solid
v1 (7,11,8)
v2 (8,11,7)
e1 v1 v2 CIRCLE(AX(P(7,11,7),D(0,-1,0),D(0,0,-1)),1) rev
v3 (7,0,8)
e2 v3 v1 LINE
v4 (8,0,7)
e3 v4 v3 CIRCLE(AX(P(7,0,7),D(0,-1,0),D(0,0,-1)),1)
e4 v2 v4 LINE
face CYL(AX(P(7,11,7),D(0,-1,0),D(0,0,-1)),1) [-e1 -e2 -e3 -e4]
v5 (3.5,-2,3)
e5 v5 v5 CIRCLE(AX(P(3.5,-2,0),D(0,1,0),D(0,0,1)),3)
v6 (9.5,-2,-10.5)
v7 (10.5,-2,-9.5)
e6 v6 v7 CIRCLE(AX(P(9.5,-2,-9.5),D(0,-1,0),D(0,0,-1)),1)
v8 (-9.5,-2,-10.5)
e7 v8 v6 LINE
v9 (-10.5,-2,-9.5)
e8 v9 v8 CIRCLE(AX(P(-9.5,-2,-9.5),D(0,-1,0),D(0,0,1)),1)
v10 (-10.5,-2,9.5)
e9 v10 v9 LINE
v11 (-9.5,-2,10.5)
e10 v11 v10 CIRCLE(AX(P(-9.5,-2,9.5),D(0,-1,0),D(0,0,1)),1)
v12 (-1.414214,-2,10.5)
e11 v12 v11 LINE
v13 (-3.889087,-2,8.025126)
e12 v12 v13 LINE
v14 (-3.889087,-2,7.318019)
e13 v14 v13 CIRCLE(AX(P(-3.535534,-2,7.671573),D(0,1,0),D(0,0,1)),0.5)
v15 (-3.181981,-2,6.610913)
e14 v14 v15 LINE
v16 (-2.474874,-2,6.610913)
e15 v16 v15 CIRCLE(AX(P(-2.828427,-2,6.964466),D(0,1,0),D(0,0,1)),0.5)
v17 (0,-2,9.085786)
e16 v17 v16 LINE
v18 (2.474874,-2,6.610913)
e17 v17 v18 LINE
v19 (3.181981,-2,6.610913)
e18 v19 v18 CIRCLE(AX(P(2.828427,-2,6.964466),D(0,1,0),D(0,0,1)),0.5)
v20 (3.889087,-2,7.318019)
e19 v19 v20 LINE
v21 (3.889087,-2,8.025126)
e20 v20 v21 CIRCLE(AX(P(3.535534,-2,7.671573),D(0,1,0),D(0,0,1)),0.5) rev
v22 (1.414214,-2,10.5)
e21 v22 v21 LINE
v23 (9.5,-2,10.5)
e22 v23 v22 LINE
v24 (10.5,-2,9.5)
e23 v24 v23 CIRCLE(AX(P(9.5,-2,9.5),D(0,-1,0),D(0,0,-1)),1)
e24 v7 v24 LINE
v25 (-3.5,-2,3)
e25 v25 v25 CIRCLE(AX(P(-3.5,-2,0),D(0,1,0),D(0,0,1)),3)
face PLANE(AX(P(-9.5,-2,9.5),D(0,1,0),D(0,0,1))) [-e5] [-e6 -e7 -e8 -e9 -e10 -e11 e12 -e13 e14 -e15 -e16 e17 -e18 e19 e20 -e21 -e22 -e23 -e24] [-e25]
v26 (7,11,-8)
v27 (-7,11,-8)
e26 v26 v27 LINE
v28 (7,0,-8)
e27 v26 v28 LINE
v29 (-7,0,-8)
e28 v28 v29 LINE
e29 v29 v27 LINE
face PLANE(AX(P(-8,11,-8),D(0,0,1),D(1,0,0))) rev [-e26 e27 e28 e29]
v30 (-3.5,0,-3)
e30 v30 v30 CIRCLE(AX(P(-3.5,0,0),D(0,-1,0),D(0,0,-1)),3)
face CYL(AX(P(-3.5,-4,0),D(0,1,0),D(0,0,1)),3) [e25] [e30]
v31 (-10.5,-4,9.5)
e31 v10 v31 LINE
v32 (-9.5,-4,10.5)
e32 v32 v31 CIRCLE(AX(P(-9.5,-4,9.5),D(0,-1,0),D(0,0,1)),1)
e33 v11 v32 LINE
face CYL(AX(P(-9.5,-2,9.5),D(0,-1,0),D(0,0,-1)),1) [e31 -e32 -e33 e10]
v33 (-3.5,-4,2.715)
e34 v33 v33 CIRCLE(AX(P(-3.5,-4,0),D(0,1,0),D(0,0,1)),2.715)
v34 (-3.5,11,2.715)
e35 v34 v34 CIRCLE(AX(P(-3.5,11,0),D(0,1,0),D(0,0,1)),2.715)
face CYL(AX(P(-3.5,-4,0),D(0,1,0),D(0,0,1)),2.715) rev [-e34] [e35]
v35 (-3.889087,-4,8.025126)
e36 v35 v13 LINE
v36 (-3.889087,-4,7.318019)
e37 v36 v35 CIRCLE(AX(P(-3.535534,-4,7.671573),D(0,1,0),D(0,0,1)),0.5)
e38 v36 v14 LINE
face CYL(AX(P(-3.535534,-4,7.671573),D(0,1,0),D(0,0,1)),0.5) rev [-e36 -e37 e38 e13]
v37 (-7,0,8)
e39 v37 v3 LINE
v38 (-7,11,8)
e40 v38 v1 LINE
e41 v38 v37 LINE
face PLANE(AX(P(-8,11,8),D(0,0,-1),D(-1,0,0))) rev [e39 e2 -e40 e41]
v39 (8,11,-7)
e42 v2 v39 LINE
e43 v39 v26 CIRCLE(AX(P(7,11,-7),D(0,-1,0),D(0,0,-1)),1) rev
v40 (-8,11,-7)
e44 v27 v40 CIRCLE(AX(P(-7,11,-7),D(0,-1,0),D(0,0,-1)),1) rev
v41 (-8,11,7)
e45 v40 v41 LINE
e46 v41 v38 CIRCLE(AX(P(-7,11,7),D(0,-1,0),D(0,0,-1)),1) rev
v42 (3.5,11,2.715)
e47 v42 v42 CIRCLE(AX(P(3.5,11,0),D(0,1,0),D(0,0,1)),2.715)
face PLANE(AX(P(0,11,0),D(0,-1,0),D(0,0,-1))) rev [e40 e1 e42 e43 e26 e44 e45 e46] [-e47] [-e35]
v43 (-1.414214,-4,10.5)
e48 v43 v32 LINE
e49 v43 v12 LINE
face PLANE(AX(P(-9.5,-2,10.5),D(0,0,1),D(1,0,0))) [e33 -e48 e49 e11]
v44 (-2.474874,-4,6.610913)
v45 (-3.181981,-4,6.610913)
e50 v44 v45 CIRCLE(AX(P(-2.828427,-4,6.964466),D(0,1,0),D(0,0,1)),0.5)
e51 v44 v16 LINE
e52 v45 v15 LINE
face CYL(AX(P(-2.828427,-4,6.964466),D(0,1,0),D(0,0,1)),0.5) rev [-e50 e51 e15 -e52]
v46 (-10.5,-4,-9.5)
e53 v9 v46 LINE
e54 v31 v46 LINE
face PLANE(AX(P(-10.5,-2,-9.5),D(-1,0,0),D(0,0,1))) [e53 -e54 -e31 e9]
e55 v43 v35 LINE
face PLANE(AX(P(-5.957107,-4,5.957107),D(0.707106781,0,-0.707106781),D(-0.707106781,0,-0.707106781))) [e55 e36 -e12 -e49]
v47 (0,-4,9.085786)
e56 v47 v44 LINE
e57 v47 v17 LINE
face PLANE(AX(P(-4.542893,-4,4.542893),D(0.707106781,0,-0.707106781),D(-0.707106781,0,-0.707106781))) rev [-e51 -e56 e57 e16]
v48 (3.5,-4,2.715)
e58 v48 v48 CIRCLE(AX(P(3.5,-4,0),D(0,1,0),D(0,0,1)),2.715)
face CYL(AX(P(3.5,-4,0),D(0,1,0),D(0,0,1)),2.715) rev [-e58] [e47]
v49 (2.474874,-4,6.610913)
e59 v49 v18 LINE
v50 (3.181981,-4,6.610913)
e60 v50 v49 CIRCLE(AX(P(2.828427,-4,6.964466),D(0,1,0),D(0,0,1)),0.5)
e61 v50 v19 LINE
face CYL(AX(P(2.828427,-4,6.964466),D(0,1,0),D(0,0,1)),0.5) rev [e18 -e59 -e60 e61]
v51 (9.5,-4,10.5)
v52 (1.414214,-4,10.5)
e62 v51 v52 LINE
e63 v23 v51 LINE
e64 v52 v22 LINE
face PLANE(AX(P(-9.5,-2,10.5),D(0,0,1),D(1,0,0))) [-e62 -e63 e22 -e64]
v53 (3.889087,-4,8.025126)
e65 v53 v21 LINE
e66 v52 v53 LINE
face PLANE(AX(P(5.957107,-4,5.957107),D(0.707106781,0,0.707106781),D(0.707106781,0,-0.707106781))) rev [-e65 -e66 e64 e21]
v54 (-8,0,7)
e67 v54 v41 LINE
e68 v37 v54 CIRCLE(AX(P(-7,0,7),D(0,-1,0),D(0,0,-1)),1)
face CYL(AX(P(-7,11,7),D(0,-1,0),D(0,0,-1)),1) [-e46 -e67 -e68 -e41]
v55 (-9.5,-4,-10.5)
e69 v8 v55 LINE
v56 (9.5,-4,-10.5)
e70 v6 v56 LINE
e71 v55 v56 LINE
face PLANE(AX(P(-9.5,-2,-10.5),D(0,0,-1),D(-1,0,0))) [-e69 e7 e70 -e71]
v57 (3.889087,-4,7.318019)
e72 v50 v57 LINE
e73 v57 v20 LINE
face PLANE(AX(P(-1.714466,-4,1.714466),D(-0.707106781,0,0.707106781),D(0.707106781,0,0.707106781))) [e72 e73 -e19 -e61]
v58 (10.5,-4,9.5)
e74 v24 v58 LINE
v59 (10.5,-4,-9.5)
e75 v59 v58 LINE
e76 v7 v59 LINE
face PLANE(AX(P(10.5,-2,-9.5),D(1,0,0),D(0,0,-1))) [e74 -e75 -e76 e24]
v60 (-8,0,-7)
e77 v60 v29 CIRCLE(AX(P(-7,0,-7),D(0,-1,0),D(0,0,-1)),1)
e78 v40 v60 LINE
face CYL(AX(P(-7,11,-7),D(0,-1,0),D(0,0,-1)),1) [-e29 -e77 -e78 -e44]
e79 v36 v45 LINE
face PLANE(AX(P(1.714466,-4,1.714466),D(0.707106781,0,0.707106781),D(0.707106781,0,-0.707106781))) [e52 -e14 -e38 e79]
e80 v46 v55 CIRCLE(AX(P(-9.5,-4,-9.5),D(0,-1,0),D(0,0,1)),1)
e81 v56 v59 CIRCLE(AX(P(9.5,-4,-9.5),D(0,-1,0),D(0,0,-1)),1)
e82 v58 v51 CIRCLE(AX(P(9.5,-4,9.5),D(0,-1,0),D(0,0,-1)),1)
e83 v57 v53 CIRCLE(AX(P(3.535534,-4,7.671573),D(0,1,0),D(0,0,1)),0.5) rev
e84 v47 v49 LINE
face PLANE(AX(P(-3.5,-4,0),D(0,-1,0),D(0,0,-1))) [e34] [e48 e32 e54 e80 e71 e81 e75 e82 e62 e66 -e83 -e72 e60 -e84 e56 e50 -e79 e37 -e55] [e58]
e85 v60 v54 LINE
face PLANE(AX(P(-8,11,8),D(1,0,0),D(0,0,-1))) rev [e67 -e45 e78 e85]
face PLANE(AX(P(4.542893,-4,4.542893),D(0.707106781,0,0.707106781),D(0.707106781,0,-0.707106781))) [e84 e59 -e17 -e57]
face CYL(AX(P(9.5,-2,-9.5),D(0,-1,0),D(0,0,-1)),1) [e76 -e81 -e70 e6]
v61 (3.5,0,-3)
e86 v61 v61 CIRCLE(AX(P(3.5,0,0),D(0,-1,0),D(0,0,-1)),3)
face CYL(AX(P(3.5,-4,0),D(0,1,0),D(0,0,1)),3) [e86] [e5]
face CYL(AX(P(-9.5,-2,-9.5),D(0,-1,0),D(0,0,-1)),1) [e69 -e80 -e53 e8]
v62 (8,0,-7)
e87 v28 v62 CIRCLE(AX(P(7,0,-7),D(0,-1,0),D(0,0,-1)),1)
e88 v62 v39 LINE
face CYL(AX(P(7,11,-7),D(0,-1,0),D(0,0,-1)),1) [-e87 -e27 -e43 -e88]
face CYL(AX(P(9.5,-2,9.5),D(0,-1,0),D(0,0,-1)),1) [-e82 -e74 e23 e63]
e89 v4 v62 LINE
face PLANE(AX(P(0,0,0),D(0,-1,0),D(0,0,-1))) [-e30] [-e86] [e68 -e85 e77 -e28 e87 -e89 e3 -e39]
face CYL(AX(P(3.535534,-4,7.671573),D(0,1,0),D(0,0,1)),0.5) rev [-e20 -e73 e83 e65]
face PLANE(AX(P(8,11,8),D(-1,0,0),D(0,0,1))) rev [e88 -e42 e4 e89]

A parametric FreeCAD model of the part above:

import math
import FreeCAD as App
import Part
import Sketcher
from FreeCAD import Vector
Q = App.Units.Quantity


def edges_at(feature, points):
    """Names of the edges that pass closest to the given points."""
    edges = feature.Shape.Edges
    near = lambda p: min(range(len(edges)), key=lambda i: edges[i].distToShape(Part.Vertex(*p))[0])
    return sorted({f"Edge{near(p) + 1}" for p in points})


def add_polygon(sketch, points):
    """Adds a closed chain of lines whose ends are joined by coincident constraints."""
    first, n = sketch.GeometryCount, len(points)
    for a, b in zip(points, points[1:] + points[:1]):
        sketch.addGeometry(Part.LineSegment(App.Vector(*a, 0), App.Vector(*b, 0)), False)
    for i in range(n):
        sketch.addConstraint(Sketcher.Constraint("Coincident", first + i, 2, first + (i + 1) % n, 1))

doc = App.newDocument("Part")
params = doc.addObject("Spreadsheet::Sheet", "Params")
for row, (alias, value) in enumerate([
    ("sketch1_width", "16 mm"),
    ("pad1_length", "11 mm"),
    ("fillet_radius", "1 mm"),
    ("sketch2_diameter", "6 mm"),
    ("pad2_length", "4 mm"),
    ("sketch3_radius", "1 mm"),
    ("sketch3_width", "19 mm"),
    ("pad3_length", "2 mm"),
    ("sketch4_diameter", "5.43 mm"),
    ("sketch5_radius", "0.5 mm"),
    ("sketch5_length", "1 mm"),
    ("sketch5_length2", "3.5 mm"),
], start=1):
    params.set(f"A{row}", alias)
    params.set(f"B{row}", "=" + value)
    params.setAlias(f"B{row}", alias)

body = doc.addObject("PartDesign::Body", "Body")

# Sketch on XZ plane
sketch1 = body.newObject("Sketcher::SketchObject", "Sketch")
sketch1.AttachmentSupport = (doc.getObject("XZ_Plane"), [""])
sketch1.MapMode = "FlatFace"
add_polygon(sketch1, [(-8, -8), (-8, 8), (8, 8), (8, -8)])  # lines 0-3
sketch1.addConstraint([
    Sketcher.Constraint("Vertical", 0),
    Sketcher.Constraint("Horizontal", 1),
    Sketcher.Constraint("Vertical", 2),
    Sketcher.Constraint("Horizontal", 3),
    Sketcher.Constraint("Symmetric", 0, 2, 2, 2, -1, 1),
    Sketcher.Constraint("Equal", 3, 0),
    Sketcher.Constraint("DistanceX", 1, 1, 1, 2, Q("16 mm")),
])
sketch1.setExpression("Constraints[10]", "Params.sketch1_width")
pad1 = body.newObject("PartDesign::Pad", "Pad")
pad1.Profile = sketch1
pad1.setExpression("Length", "Params.pad1_length")
pad1.Reversed = True
doc.recompute()

fillet = body.newObject("PartDesign::Fillet", "Fillet")
fillet.Base = (pad1, edges_at(pad1, [
    (8, 5.5, 8),
    (-8, 5.5, 8),
    (-8, 5.5, -8),
    (8, 5.5, -8),
]))
fillet.setExpression("Radius", "Params.fillet_radius")

# Sketch on XZ plane
sketch2 = body.newObject("Sketcher::SketchObject", "Sketch001")
sketch2.AttachmentSupport = (doc.getObject("XZ_Plane"), [""])
sketch2.MapMode = "FlatFace"
sketch2.addGeometry([
    Part.Circle(Vector(-3.5, 0, 0), Vector(0, 0, 1), 3),
    Part.Circle(Vector(3.5, 0, 0), Vector(0, 0, 1), 3),
], False)
sketch2.addConstraint([
    Sketcher.Constraint("Equal", 0, 1),
    Sketcher.Constraint("Symmetric", 0, 3, 1, 3, -1, 1),
    Sketcher.Constraint("PointOnObject", 0, 3, -1),
    Sketcher.Constraint("Diameter", 0, Q("6 mm")),
    Sketcher.Constraint("DistanceX", 0, 3, 1, 3, Q("7 mm")),
])
sketch2.setExpression("Constraints[3]", "Params.sketch2_diameter")
pad2 = body.newObject("PartDesign::Pad", "Pad001")
pad2.Profile = sketch2
pad2.setExpression("Length", "Params.pad2_length")

# Sketch on XZ plane
sketch3 = body.newObject("Sketcher::SketchObject", "Sketch002")
sketch3.AttachmentSupport = (doc.getObject("XZ_Plane"), [""])
sketch3.MapMode = "FlatFace"
sketch3.AttachmentOffset = App.Placement(Vector(0, 0, 4), App.Rotation())
sketch3.addGeometry([
    Part.LineSegment(Vector(-9.5, -10.5, 0), Vector(9.5, -10.5, 0)),  # 0
    Part.ArcOfCircle(Part.Circle(Vector(9.5, -9.5, 0), Vector(0, 0, 1), 1), math.radians(-90), math.radians(0)),  # 1
    Part.LineSegment(Vector(10.5, -9.5, 0), Vector(10.5, 9.5, 0)),  # 2
    Part.ArcOfCircle(Part.Circle(Vector(9.5, 9.5, 0), Vector(0, 0, 1), 1), math.radians(0), math.radians(90)),  # 3
    Part.LineSegment(Vector(9.5, 10.5, 0), Vector(-9.5, 10.5, 0)),  # 4
    Part.ArcOfCircle(Part.Circle(Vector(-9.5, 9.5, 0), Vector(0, 0, 1), 1), math.radians(90), math.radians(180)),  # 5
    Part.LineSegment(Vector(-10.5, 9.5, 0), Vector(-10.5, -9.5, 0)),  # 6
    Part.ArcOfCircle(Part.Circle(Vector(-9.5, -9.5, 0), Vector(0, 0, 1), 1), math.radians(-180), math.radians(-90)),  # 7
], False)
sketch3.addConstraint([
    Sketcher.Constraint("Tangent", 0, 2, 1, 1),
    Sketcher.Constraint("Tangent", 1, 2, 2, 1),
    Sketcher.Constraint("Tangent", 2, 2, 3, 1),
    Sketcher.Constraint("Tangent", 3, 2, 4, 1),
    Sketcher.Constraint("Tangent", 4, 2, 5, 1),
    Sketcher.Constraint("Tangent", 5, 2, 6, 1),
    Sketcher.Constraint("Tangent", 6, 2, 7, 1),
    Sketcher.Constraint("Tangent", 7, 2, 0, 1),
    Sketcher.Constraint("Horizontal", 0),
    Sketcher.Constraint("Vertical", 2),
    Sketcher.Constraint("Horizontal", 4),
    Sketcher.Constraint("Vertical", 6),
    Sketcher.Constraint("Equal", 1, 3),
    Sketcher.Constraint("Equal", 3, 5),
    Sketcher.Constraint("Equal", 5, 7),
    Sketcher.Constraint("Symmetric", 1, 3, 5, 3, -1, 1),
    Sketcher.Constraint("Equal", 4, 2),
    Sketcher.Constraint("Radius", 1, Q("1 mm")),
    Sketcher.Constraint("DistanceX", 0, 1, 0, 2, Q("19 mm")),
])
sketch3.setExpression("Constraints[17]", "Params.sketch3_radius")
sketch3.setExpression("Constraints[18]", "Params.sketch3_width")
pad3 = body.newObject("PartDesign::Pad", "Pad002")
pad3.Profile = sketch3
pad3.setExpression("Length", "Params.pad3_length")
pad3.Reversed = True

# Sketch on XZ plane
sketch4 = body.newObject("Sketcher::SketchObject", "Sketch003")
sketch4.AttachmentSupport = (doc.getObject("XZ_Plane"), [""])
sketch4.MapMode = "FlatFace"
sketch4.AttachmentOffset = App.Placement(Vector(0, 0, -11), App.Rotation())
sketch4.addGeometry([
    Part.Circle(Vector(-3.5, 0, 0), Vector(0, 0, 1), 2.7),
    Part.Circle(Vector(3.5, 0, 0), Vector(0, 0, 1), 2.7),
], False)
sketch4.addConstraint([
    Sketcher.Constraint("Equal", 0, 1),
    Sketcher.Constraint("Symmetric", 0, 3, 1, 3, -1, 1),
    Sketcher.Constraint("PointOnObject", 0, 3, -1),
    Sketcher.Constraint("Diameter", 0, Q("5.43 mm")),
    Sketcher.Constraint("DistanceX", 0, 3, 1, 3, Q("7 mm")),
])
sketch4.setExpression("Constraints[3]", "Params.sketch4_diameter")
pocket1 = body.newObject("PartDesign::Pocket", "Pocket")
pocket1.Profile = sketch4
pocket1.Type = "ThroughAll"
pocket1.Reversed = True

# Sketch on XZ plane
sketch5 = body.newObject("Sketcher::SketchObject", "Sketch004")
sketch5.AttachmentSupport = (doc.getObject("XZ_Plane"), [""])
sketch5.MapMode = "FlatFace"
sketch5.AttachmentOffset = App.Placement(Vector(0, 0, 2), App.Rotation())
sketch5.addGeometry([
    Part.LineSegment(Vector(1.4, 10.5, 0), Vector(3.9, 8, 0)),  # 0
    Part.ArcOfCircle(Part.Circle(Vector(3.5, 7.7, 0), Vector(0, 0, 1), 0.5), math.radians(-45), math.radians(45)),  # 1
    Part.LineSegment(Vector(3.9, 7.3, 0), Vector(3.2, 6.6, 0)),  # 2
    Part.ArcOfCircle(Part.Circle(Vector(2.8, 7, 0), Vector(0, 0, 1), 0.5), math.radians(-135), math.radians(-45)),  # 3
    Part.LineSegment(Vector(2.5, 6.6, 0), Vector(0, 9.1, 0)),  # 4
    Part.LineSegment(Vector(0, 9.1, 0), Vector(-2.5, 6.6, 0)),  # 5
    Part.ArcOfCircle(Part.Circle(Vector(-2.8, 7, 0), Vector(0, 0, 1), 0.5), math.radians(-135), math.radians(-45)),  # 6
    Part.LineSegment(Vector(-3.2, 6.6, 0), Vector(-3.9, 7.3, 0)),  # 7
    Part.ArcOfCircle(Part.Circle(Vector(-3.5, 7.7, 0), Vector(0, 0, 1), 0.5), math.radians(135), math.radians(225)),  # 8
    Part.LineSegment(Vector(-3.9, 8, 0), Vector(-1.4, 10.5, 0)),  # 9
    Part.LineSegment(Vector(-1.4, 10.5, 0), Vector(1.4, 10.5, 0)),  # 10
], False)
sketch5.addConstraint([
    Sketcher.Constraint("Tangent", 0, 2, 1, 2),
    Sketcher.Constraint("Tangent", 1, 1, 2, 1),
    Sketcher.Constraint("Tangent", 2, 2, 3, 2),
    Sketcher.Constraint("Tangent", 3, 1, 4, 1),
    Sketcher.Constraint("Coincident", 4, 2, 5, 1),
    Sketcher.Constraint("Tangent", 5, 2, 6, 2),
    Sketcher.Constraint("Tangent", 6, 1, 7, 1),
    Sketcher.Constraint("Tangent", 7, 2, 8, 2),
    Sketcher.Constraint("Tangent", 8, 1, 9, 1),
    Sketcher.Constraint("Coincident", 9, 2, 10, 1),
    Sketcher.Constraint("Coincident", 10, 2, 0, 1),
    Sketcher.Constraint("Horizontal", 10),
    Sketcher.Constraint("Equal", 1, 3),
    Sketcher.Constraint("Equal", 3, 6),
    Sketcher.Constraint("Equal", 6, 8),
    Sketcher.Constraint("Symmetric", 3, 3, 6, 3, -2),
    Sketcher.Constraint("Symmetric", 1, 3, 8, 3, -2),
    Sketcher.Constraint("PointOnObject", 4, 2, -2),
    Sketcher.Constraint("Perpendicular", 0, 2),
    Sketcher.Constraint("Perpendicular", 2, 4),
    Sketcher.Constraint("Perpendicular", 4, 5),
    Sketcher.Constraint("Perpendicular", 7, 9),
    Sketcher.Constraint("Equal", 0, 4),
    Sketcher.Constraint("Radius", 1, Q("0.5 mm")),
    Sketcher.Constraint("Distance", 2, Q("1 mm")),
    Sketcher.Constraint("Distance", 0, Q("3.5 mm")),
    Sketcher.Constraint("DistanceY", -1, 1, 9, 2, Q("10.5 mm")),
])
sketch5.setExpression("Constraints[23]", "Params.sketch5_radius")
sketch5.setExpression("Constraints[24]", "Params.sketch5_length")
sketch5.setExpression("Constraints[25]", "Params.sketch5_length2")
pocket2 = body.newObject("PartDesign::Pocket", "Pocket001")
pocket2.Profile = sketch5
pocket2.Type = "ThroughAll"
pocket2.Reversed = True

doc.recompute()
